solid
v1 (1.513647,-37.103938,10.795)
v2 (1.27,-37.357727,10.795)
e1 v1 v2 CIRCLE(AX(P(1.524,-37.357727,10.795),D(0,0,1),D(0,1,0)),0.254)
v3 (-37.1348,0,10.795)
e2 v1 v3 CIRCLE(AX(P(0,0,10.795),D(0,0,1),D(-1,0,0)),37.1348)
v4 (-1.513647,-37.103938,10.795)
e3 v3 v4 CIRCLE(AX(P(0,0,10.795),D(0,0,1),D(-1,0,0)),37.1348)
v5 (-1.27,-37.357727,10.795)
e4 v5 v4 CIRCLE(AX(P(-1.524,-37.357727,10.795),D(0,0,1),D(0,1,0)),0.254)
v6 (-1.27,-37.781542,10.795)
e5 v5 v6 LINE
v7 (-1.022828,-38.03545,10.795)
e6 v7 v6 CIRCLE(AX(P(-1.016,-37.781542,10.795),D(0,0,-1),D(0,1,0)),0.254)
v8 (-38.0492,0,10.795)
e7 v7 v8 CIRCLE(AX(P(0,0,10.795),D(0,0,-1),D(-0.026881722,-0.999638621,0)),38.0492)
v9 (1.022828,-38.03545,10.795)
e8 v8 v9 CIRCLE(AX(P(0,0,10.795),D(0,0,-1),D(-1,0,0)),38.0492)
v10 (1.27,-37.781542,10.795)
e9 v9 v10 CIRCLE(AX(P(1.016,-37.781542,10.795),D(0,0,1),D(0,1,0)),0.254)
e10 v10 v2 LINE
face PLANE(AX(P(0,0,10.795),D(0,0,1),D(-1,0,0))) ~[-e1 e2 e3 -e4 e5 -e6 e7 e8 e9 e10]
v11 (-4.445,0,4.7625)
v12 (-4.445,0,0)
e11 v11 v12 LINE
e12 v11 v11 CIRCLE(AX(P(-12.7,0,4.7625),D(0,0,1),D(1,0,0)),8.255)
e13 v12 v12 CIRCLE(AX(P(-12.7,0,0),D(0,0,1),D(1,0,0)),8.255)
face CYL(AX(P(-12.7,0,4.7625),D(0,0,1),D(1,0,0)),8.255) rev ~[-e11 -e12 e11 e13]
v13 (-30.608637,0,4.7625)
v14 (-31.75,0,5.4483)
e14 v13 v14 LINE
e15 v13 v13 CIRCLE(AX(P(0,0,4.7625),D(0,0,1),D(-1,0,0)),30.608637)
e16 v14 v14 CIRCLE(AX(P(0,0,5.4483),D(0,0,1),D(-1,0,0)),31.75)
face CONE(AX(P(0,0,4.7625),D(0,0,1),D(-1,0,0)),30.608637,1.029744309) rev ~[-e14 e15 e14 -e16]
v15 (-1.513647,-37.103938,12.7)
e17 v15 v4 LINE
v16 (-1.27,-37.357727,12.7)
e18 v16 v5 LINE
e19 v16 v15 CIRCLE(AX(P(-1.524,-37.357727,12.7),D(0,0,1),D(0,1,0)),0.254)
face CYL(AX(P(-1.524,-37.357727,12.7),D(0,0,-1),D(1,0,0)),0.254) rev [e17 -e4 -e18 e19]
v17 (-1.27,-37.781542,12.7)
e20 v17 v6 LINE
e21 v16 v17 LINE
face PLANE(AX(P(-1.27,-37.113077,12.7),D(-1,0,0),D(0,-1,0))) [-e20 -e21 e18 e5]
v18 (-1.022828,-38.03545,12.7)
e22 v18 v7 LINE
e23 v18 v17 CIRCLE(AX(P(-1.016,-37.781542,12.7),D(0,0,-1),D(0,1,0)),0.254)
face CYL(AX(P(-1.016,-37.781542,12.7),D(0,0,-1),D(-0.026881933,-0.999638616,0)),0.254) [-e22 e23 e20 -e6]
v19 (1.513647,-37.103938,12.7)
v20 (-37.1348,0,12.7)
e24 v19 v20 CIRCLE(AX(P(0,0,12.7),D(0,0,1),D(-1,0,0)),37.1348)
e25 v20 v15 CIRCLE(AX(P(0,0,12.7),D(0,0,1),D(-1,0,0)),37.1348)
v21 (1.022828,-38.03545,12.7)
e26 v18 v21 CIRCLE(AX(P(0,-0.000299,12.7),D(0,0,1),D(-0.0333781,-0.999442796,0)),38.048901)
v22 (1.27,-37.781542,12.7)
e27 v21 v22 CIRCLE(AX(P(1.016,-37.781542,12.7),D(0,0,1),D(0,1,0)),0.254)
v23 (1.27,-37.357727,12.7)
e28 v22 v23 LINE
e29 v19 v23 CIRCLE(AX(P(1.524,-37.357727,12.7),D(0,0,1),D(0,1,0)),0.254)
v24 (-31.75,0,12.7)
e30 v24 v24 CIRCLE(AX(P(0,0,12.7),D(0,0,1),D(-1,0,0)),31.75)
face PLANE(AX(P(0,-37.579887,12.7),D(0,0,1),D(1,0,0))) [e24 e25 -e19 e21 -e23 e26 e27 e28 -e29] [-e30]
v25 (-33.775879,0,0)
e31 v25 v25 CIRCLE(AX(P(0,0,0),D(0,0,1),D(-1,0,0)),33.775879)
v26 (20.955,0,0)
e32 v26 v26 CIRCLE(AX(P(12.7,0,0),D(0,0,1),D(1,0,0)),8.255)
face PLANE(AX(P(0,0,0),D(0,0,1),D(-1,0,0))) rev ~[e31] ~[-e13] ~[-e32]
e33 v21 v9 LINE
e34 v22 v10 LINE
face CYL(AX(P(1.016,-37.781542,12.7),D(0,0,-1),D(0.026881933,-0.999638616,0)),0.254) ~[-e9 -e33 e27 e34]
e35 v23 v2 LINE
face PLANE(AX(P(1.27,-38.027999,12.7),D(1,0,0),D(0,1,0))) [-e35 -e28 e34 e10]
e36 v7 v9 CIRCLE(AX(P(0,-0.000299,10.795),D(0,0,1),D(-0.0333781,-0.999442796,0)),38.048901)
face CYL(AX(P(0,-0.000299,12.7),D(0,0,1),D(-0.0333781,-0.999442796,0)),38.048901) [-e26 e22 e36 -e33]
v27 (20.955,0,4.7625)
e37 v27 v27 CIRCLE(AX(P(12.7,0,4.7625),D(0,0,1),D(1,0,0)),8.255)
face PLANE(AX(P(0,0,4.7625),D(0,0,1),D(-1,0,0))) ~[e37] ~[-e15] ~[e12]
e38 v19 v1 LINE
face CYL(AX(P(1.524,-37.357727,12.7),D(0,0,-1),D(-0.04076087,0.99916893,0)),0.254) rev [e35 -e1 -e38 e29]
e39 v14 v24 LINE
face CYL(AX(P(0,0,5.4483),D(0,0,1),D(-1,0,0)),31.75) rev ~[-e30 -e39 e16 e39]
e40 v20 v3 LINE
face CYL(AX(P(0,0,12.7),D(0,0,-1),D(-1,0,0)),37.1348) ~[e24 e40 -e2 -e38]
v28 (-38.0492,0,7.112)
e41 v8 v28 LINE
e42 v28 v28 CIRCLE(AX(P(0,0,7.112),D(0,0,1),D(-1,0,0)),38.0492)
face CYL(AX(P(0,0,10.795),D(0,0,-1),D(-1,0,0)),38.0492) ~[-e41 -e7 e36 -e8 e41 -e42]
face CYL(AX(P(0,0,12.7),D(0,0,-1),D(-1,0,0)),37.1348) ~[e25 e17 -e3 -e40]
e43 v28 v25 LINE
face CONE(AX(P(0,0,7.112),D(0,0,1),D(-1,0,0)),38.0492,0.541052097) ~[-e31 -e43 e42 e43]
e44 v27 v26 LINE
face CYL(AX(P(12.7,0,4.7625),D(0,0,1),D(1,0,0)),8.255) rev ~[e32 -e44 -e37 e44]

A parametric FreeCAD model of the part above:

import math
import FreeCAD as App
import Part
import Sketcher
from FreeCAD import Vector
Q = App.Units.Quantity


def edges_at(feature, points):
    """Names of the edges that pass closest to the given points."""
    edges = feature.Shape.Edges
    near = lambda p: min(range(len(edges)), key=lambda i: edges[i].distToShape(Part.Vertex(*p))[0])
    return sorted({f"Edge{near(p) + 1}" for p in points})


def add_polygon(sketch, points):
    """Adds a closed chain of lines whose ends are joined by coincident constraints."""
    first, n = sketch.GeometryCount, len(points)
    for a, b in zip(points, points[1:] + points[:1]):
        sketch.addGeometry(Part.LineSegment(App.Vector(*a, 0), App.Vector(*b, 0)), False)
    for i in range(n):
        sketch.addConstraint(Sketcher.Constraint("Coincident", first + i, 2, first + (i + 1) % n, 1))

doc = App.newDocument("Part")
params = doc.addObject("Spreadsheet::Sheet", "Params")
for row, (alias, value) in enumerate([
    ("sketch1_width", "0.212 in"),
    ("sketch1_width2", "0.036 in"),
    ("sketch1_height", "0.1875 in"),
    ("sketch1_height2", "0.075 in"),
    ("sketch1_height3", "0.145 in"),
    ("revolution_angle", "360 deg"),
    ("sketch2_diameter", "0.65 in"),
    ("pocket1_length", "1 in"),
    ("fillet_radius", "0.01 in"),
], start=1):
    params.set(f"A{row}", alias)
    params.set(f"B{row}", "=" + value)
    params.setAlias(f"B{row}", alias)

body = doc.addObject("PartDesign::Body", "Body")

# Sketch on XZ plane
sketch1 = doc.addObject("Sketcher::SketchObject", "Sketch")
body.addObject(sketch1)
sketch1.AttachmentSupport = (doc.XZ_Plane, [""])
sketch1.MapMode = "FlatFace"
add_polygon(sketch1, [(-33.8, 0), (0, 0), (0, 4.8), (-30.6, 4.8), (-31.8, 5.4), (-31.8, 12.7), (-37.1, 12.7), (-37.1, 10.8), (-38, 10.8), (-38, 7.1)])  # lines 0-9
sketch1.addConstraint(Sketcher.Constraint("Horizontal", 0))
sketch1.addConstraint(Sketcher.Constraint("Vertical", 1))
sketch1.addConstraint(Sketcher.Constraint("Horizontal", 2))
sketch1.addConstraint(Sketcher.Constraint("Vertical", 4))
sketch1.addConstraint(Sketcher.Constraint("Horizontal", 5))
sketch1.addConstraint(Sketcher.Constraint("Vertical", 6))
sketch1.addConstraint(Sketcher.Constraint("Horizontal", 7))
sketch1.addConstraint(Sketcher.Constraint("Vertical", 8))
sketch1.addConstraint(Sketcher.Constraint("Coincident", 0, 2, -1, 1))
sketch1.addConstraint(Sketcher.Constraint("Angle", 3, Q("149.000003 deg")))
sketch1.addConstraint(Sketcher.Constraint("Angle", 9, Q("-58.999998 deg")))
sketch1.addConstraint(Sketcher.Constraint("DistanceY", -1, 1, 4, 2, Q("0.5 in")))
sketch1.addConstraint(Sketcher.Constraint("DistanceX", 5, 2, 5, 1, Q("0.212 in")))
sketch1.addConstraint(Sketcher.Constraint("DistanceX", 7, 2, 7, 1, Q("0.036 in")))
sketch1.addConstraint(Sketcher.Constraint("DistanceY", 1, 1, 1, 2, Q("0.1875 in")))
sketch1.addConstraint(Sketcher.Constraint("DistanceY", 6, 2, 6, 1, Q("0.075 in")))
sketch1.addConstraint(Sketcher.Constraint("DistanceY", 8, 2, 8, 1, Q("0.145 in")))
sketch1.addConstraint(Sketcher.Constraint("DistanceX", 3, 2, -1, 1, Q("1.25 in")))
sketch1.addConstraint(Sketcher.Constraint("DistanceY", 4, 1, 4, 2, Q("0.2855 in")))
sketch1.setExpression("Constraints[22]", "Params.sketch1_width")
sketch1.setExpression("Constraints[23]", "Params.sketch1_width2")
sketch1.setExpression("Constraints[24]", "Params.sketch1_height")
sketch1.setExpression("Constraints[25]", "Params.sketch1_height2")
sketch1.setExpression("Constraints[26]", "Params.sketch1_height3")
revolution = doc.addObject("PartDesign::Revolution", "Revolution")
body.addObject(revolution)
revolution.Profile = sketch1
revolution.ReferenceAxis = (sketch1, ["V_Axis"])
revolution.setExpression("Angle", "Params.revolution_angle")

# Sketch on XY plane
sketch2 = doc.addObject("Sketcher::SketchObject", "Sketch001")
body.addObject(sketch2)
sketch2.AttachmentSupport = (doc.XY_Plane, [""])
sketch2.MapMode = "FlatFace"
sketch2.AttachmentOffset = App.Placement(Vector(0, 0, 0.1875 * 25.4), App.Rotation())
sketch2.addGeometry(Part.Circle(Vector(-13, 0, 0), Vector(0, 0, 1), 8), False)
sketch2.addGeometry(Part.Circle(Vector(13, 0, 0), Vector(0, 0, 1), 8), False)
sketch2.addConstraint(Sketcher.Constraint("Equal", 0, 1))
sketch2.addConstraint(Sketcher.Constraint("Symmetric", 0, 3, 1, 3, -1, 1))
sketch2.addConstraint(Sketcher.Constraint("PointOnObject", 0, 3, -1))
sketch2.addConstraint(Sketcher.Constraint("Diameter", 0, Q("0.65 in")))
sketch2.addConstraint(Sketcher.Constraint("DistanceX", 0, 3, 1, 3, Q("1 in")))
sketch2.setExpression("Constraints[3]", "Params.sketch2_diameter")
pocket1 = doc.addObject("PartDesign::Pocket", "Pocket")
body.addObject(pocket1)
pocket1.Profile = sketch2
pocket1.setExpression("Length", "Params.pocket1_length")

# Sketch on XY plane
sketch3 = doc.addObject("Sketcher::SketchObject", "Sketch002")
body.addObject(sketch3)
sketch3.AttachmentSupport = (doc.XY_Plane, [""])
sketch3.MapMode = "FlatFace"
sketch3.AttachmentOffset = App.Placement(Vector(0, 0, 0.5 * 25.4), App.Rotation())
sketch3.addGeometry(Part.ArcOfCircle(Part.Circle(Vector(0, 0.000308, 0), Vector(0, 0, 1), 37.135108), math.radians(-91.959866), math.radians(-88.040134)), False)
sketch3.addGeometry(Part.LineSegment(Vector(-1.27, -37.113077, 0), Vector(-1.27, -38.027999, 0)), False)
sketch3.addGeometry(Part.ArcOfCircle(Part.Circle(Vector(0, -0.000299, 0), Vector(0, 0, 1), 38.048901), math.radians(-91.91278), math.radians(-88.08722)), False)
sketch3.addGeometry(Part.LineSegment(Vector(1.27, -38.027999, 0), Vector(1.27, -37.113077, 0)), False)
sketch3.addConstraint(Sketcher.Constraint("Coincident", 0, 1, 1, 1))
sketch3.addConstraint(Sketcher.Constraint("Coincident", 1, 2, 2, 1))
sketch3.addConstraint(Sketcher.Constraint("Coincident", 2, 2, 3, 1))
sketch3.addConstraint(Sketcher.Constraint("Coincident", 3, 2, 0, 2))
sketch3.addConstraint(Sketcher.Constraint("Vertical", 1))
sketch3.addConstraint(Sketcher.Constraint("Vertical", 3))
sketch3.addConstraint(Sketcher.Constraint("Symmetric", 0, 3, 2, 3, -1, 1))
sketch3.addConstraint(Sketcher.Constraint("Symmetric", 1, 2, 2, 2, -2))
sketch3.addConstraint(Sketcher.Constraint("DistanceX", 1, 2, 2, 2, Q("0.1 in")))
sketch3.addConstraint(Sketcher.Constraint("Radius", 2, 38.048901))
sketch3.addConstraint(Sketcher.Constraint("Radius", 0, 37.135108))
sketch3.addConstraint(Sketcher.Constraint("DistanceY", 2, 3, -1, 1, 0.000299))
pad1 = doc.addObject("PartDesign::Pad", "Pad")
body.addObject(pad1)
pad1.Profile = sketch3
pad1.Type = "UpToLast"
pad1.Reversed = True
doc.recompute()

fillet = doc.addObject("PartDesign::Fillet", "Fillet")
body.addObject(fillet)
fillet.Base = (pad1, edges_at(pad1, [
    (1.27, -37.113, 11.748),
    (1.27, -38.028, 11.748),
    (-1.27, -38.028, 11.748),
    (-1.27, -37.113, 11.748),
]))
fillet.setExpression("Radius", "Params.fillet_radius")

doc.recompute()
